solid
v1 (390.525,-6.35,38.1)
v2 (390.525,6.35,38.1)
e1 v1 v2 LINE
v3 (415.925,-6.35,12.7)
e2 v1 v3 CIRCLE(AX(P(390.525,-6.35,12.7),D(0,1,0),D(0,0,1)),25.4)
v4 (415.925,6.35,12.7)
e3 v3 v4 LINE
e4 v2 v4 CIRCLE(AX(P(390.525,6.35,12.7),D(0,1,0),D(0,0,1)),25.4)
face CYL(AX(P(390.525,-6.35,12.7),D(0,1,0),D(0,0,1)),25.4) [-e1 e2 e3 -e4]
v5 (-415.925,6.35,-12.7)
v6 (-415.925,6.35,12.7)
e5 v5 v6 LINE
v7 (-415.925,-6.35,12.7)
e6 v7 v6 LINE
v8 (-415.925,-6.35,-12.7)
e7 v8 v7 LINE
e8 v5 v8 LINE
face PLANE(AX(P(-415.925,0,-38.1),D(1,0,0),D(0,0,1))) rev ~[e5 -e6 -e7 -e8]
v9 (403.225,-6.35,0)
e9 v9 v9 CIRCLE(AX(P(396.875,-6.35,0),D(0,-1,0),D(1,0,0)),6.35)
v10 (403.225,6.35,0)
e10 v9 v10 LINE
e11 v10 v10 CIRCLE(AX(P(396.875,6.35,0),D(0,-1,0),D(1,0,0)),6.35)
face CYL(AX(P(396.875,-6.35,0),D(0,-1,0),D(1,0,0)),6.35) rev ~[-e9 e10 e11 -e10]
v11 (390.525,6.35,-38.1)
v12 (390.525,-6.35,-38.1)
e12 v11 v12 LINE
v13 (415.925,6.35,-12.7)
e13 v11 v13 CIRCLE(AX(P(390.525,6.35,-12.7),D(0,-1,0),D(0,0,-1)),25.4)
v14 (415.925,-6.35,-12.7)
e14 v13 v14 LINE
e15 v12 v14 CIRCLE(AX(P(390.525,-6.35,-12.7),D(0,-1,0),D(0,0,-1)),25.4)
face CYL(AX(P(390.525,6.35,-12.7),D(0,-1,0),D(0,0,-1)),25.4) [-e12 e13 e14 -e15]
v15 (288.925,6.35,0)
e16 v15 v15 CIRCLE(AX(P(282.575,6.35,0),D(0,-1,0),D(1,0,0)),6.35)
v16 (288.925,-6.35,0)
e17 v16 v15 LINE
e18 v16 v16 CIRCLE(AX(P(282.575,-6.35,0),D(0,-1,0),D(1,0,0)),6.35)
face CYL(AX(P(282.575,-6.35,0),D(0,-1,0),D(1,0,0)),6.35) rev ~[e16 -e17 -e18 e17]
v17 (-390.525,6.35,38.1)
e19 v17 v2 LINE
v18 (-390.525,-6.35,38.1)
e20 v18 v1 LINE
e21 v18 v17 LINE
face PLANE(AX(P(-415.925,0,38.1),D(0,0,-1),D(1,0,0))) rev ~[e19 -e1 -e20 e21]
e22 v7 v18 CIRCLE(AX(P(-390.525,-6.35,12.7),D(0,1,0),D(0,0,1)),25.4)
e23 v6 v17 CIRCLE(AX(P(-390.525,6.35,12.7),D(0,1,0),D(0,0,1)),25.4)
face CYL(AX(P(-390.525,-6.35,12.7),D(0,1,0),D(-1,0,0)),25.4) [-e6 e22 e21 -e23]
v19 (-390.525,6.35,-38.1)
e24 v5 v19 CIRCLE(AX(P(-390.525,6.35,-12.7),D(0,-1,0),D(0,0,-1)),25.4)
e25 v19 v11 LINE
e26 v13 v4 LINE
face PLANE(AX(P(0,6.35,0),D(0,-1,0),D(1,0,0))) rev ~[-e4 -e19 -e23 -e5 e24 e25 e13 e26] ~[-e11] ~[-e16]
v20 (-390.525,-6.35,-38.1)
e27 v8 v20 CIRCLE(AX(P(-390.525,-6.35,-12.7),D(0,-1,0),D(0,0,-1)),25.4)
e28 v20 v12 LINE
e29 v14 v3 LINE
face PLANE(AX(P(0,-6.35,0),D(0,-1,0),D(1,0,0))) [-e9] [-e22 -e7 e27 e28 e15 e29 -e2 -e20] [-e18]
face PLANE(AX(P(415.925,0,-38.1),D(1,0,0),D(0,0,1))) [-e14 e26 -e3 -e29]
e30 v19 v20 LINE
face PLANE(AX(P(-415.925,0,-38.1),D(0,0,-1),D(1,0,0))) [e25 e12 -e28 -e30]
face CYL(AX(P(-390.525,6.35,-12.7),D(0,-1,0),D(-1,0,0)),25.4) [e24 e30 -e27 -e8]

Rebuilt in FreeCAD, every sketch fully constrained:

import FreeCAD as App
import Part
import Sketcher

V = App.Vector
Q = App.Units.Quantity


def edges_at(feature, points):
    """Names of the edges that pass closest to the given points."""
    edges = feature.Shape.Edges
    near = lambda p: min(range(len(edges)), key=lambda i: edges[i].distToShape(Part.Vertex(*p))[0])
    return sorted({f"Edge{near(p) + 1}" for p in points})

doc = App.newDocument("Part")
body = doc.addObject("PartDesign::Body", "Body")

sketch1 = body.newObject("Sketcher::SketchObject", "Sketch")
sketch1.AttachmentSupport = (doc.getObject("XZ_Plane"), [""])
sketch1.MapMode = "FlatFace"
sketch1.addGeometry(Part.LineSegment(V(-416, 38, 0), V(-416, -38, 0)), False)
sketch1.addGeometry(Part.LineSegment(V(-416, -38, 0), V(416, -38, 0)), False)
sketch1.addGeometry(Part.LineSegment(V(416, -38, 0), V(416, 38, 0)), False)
sketch1.addGeometry(Part.LineSegment(V(416, 38, 0), V(-416, 38, 0)), False)
sketch1.addConstraint(Sketcher.Constraint("Coincident", 0, 2, 1, 1))
sketch1.addConstraint(Sketcher.Constraint("Coincident", 1, 2, 2, 1))
sketch1.addConstraint(Sketcher.Constraint("Coincident", 2, 2, 3, 1))
sketch1.addConstraint(Sketcher.Constraint("Coincident", 3, 2, 0, 1))
sketch1.addConstraint(Sketcher.Constraint("Vertical", 0))
sketch1.addConstraint(Sketcher.Constraint("Horizontal", 1))
sketch1.addConstraint(Sketcher.Constraint("Vertical", 2))
sketch1.addConstraint(Sketcher.Constraint("Horizontal", 3))
sketch1.addConstraint(Sketcher.Constraint("Symmetric", 0, 2, 2, 2, -1, 1))
sketch1.addConstraint(Sketcher.Constraint("DistanceY", 0, 2, 0, 1, Q("3 in")))
sketch1.addConstraint(Sketcher.Constraint("DistanceX", 1, 1, 1, 2, Q("32.75 in")))
pad1 = body.newObject("PartDesign::Pad", "Pad")
pad1.Profile = sketch1
pad1.Length = Q("0.5 in")
pad1.Midplane = True

sketch2 = body.newObject("Sketcher::SketchObject", "Sketch001")
sketch2.AttachmentSupport = (doc.getObject("XZ_Plane"), [""])
sketch2.MapMode = "FlatFace"
sketch2.AttachmentOffset = App.Placement(V(0, 0, 0.25 * 25.4), App.Rotation())
sketch2.addGeometry(Part.Circle(V(283, 0, 0), V(0, 0, 1), 6), False)
sketch2.addGeometry(Part.Circle(V(397, 0, 0), V(0, 0, 1), 6), False)
sketch2.addConstraint(Sketcher.Constraint("Equal", 0, 1))
sketch2.addConstraint(Sketcher.Constraint("PointOnObject", 0, 3, -1))
sketch2.addConstraint(Sketcher.Constraint("PointOnObject", 1, 3, -1))
sketch2.addConstraint(Sketcher.Constraint("Diameter", 0, Q("0.5 in")))
sketch2.addConstraint(Sketcher.Constraint("DistanceX", 0, 3, 1, 3, Q("4.5 in")))
sketch2.addConstraint(Sketcher.Constraint("DistanceX", -1, 1, 0, 3, Q("11.125 in")))
pocket1 = body.newObject("PartDesign::Pocket", "Pocket")
pocket1.Profile = sketch2
pocket1.Length = Q("1 in")
doc.recompute()

fillet = body.newObject("PartDesign::Fillet", "Fillet")
fillet.Base = (pocket1, edges_at(pocket1, [
    (-415.925, 0, 38.1),
    (-415.925, 0, -38.1),
    (415.925, 0, -38.1),
    (415.925, 0, 38.1),
]))
fillet.Radius = Q("1 in")

doc.recompute()
